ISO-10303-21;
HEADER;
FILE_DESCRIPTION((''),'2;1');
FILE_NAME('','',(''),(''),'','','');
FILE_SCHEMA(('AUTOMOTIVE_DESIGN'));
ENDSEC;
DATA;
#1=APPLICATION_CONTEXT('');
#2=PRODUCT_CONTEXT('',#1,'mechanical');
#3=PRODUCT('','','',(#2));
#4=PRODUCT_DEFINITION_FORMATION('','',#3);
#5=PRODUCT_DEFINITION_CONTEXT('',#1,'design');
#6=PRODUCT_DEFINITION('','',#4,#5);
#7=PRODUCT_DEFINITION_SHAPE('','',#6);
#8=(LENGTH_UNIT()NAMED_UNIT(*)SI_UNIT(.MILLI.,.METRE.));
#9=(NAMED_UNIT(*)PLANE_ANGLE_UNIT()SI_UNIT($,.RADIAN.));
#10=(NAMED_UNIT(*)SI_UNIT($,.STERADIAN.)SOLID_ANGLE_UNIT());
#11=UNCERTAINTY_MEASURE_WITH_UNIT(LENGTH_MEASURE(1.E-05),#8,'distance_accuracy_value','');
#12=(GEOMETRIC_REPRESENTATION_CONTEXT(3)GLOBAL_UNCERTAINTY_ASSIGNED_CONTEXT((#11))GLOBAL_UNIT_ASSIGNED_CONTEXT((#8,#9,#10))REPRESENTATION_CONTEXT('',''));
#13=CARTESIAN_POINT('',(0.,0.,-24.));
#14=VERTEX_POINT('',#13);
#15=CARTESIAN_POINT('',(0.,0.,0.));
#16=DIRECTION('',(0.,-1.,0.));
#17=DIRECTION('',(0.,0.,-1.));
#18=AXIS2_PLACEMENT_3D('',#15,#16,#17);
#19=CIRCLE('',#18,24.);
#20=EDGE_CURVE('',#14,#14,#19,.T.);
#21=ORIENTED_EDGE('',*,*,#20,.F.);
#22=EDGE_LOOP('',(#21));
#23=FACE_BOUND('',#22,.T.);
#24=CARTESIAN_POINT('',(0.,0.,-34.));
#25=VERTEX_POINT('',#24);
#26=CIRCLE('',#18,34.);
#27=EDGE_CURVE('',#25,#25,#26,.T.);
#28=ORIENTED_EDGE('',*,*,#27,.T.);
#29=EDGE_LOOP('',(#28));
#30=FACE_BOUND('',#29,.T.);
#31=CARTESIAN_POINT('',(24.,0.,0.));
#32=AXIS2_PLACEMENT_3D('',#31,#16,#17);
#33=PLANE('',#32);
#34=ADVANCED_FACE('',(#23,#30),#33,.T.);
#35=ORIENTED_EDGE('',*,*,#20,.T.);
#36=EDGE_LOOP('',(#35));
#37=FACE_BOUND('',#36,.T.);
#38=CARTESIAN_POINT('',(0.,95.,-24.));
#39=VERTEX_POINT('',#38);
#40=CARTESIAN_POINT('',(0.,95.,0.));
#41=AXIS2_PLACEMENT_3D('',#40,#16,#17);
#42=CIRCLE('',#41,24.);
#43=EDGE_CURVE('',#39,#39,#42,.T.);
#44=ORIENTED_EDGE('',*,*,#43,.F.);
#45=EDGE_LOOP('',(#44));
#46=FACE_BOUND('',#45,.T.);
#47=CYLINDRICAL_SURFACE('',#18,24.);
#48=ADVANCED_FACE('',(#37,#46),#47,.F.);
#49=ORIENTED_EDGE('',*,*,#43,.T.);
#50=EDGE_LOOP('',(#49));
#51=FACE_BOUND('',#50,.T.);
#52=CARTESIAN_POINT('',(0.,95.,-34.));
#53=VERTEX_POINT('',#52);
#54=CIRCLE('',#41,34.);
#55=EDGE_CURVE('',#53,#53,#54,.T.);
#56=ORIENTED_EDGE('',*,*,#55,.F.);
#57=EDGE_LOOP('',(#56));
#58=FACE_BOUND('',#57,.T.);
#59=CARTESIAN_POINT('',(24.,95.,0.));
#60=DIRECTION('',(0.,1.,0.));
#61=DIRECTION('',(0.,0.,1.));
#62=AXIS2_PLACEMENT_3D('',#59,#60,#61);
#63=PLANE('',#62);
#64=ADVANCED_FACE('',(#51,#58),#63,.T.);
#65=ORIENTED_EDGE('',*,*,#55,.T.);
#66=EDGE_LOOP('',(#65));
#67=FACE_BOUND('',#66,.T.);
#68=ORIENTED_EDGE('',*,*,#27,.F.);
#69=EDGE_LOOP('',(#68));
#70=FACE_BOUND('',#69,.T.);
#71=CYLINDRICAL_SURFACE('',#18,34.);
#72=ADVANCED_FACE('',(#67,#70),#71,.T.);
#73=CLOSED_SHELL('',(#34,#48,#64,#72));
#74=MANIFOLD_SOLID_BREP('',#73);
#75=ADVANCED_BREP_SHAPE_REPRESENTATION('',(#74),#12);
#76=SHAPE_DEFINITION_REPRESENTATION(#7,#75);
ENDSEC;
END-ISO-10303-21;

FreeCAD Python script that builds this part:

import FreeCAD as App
import Part
import Sketcher

V = App.Vector
Q = App.Units.Quantity

doc = App.newDocument("Part")
params = doc.addObject("Spreadsheet::Sheet", "Params")
for row, (alias, value) in enumerate([
    ("sketch1_width", "10 mm"),
    ("sketch1_height", "95 mm"),
    ("revolution_angle", "360 deg"),
], start=1):
    params.set(f"A{row}", alias)
    params.set(f"B{row}", "=" + value)
    params.setAlias(f"B{row}", alias)

body = doc.addObject("PartDesign::Body", "Body")

sketch1 = body.newObject("Sketcher::SketchObject", "Sketch")
sketch1.AttachmentSupport = (doc.getObject("XY_Plane"), [""])
sketch1.MapMode = "FlatFace"
sketch1.addGeometry(Part.LineSegment(V(24, 95, 0), V(24, 0, 0)), False)
sketch1.addGeometry(Part.LineSegment(V(24, 0, 0), V(34, 0, 0)), False)
sketch1.addGeometry(Part.LineSegment(V(34, 0, 0), V(34, 95, 0)), False)
sketch1.addGeometry(Part.LineSegment(V(34, 95, 0), V(24, 95, 0)), False)
sketch1.addConstraint(Sketcher.Constraint("Coincident", 0, 2, 1, 1))
sketch1.addConstraint(Sketcher.Constraint("Coincident", 1, 2, 2, 1))
sketch1.addConstraint(Sketcher.Constraint("Coincident", 2, 2, 3, 1))
sketch1.addConstraint(Sketcher.Constraint("Coincident", 3, 2, 0, 1))
sketch1.addConstraint(Sketcher.Constraint("Vertical", 0))
sketch1.addConstraint(Sketcher.Constraint("Horizontal", 1))
sketch1.addConstraint(Sketcher.Constraint("Vertical", 2))
sketch1.addConstraint(Sketcher.Constraint("Horizontal", 3))
sketch1.addConstraint(Sketcher.Constraint("PointOnObject", 0, 2, -1))
sketch1.addConstraint(Sketcher.Constraint("DistanceX", 1, 1, 1, 2, Q("10 mm")))
sketch1.addConstraint(Sketcher.Constraint("DistanceY", 0, 2, 0, 1, Q("95 mm")))
sketch1.addConstraint(Sketcher.Constraint("DistanceX", -1, 1, 0, 2, Q("24 mm")))
sketch1.setExpression("Constraints[9]", "Params.sketch1_width")
sketch1.setExpression("Constraints[10]", "Params.sketch1_height")
revolution = body.newObject("PartDesign::Revolution", "Revolution")
revolution.Profile = sketch1
revolution.ReferenceAxis = (sketch1, ["V_Axis"])
revolution.setExpression("Angle", "Params.revolution_angle")

doc.recompute()
